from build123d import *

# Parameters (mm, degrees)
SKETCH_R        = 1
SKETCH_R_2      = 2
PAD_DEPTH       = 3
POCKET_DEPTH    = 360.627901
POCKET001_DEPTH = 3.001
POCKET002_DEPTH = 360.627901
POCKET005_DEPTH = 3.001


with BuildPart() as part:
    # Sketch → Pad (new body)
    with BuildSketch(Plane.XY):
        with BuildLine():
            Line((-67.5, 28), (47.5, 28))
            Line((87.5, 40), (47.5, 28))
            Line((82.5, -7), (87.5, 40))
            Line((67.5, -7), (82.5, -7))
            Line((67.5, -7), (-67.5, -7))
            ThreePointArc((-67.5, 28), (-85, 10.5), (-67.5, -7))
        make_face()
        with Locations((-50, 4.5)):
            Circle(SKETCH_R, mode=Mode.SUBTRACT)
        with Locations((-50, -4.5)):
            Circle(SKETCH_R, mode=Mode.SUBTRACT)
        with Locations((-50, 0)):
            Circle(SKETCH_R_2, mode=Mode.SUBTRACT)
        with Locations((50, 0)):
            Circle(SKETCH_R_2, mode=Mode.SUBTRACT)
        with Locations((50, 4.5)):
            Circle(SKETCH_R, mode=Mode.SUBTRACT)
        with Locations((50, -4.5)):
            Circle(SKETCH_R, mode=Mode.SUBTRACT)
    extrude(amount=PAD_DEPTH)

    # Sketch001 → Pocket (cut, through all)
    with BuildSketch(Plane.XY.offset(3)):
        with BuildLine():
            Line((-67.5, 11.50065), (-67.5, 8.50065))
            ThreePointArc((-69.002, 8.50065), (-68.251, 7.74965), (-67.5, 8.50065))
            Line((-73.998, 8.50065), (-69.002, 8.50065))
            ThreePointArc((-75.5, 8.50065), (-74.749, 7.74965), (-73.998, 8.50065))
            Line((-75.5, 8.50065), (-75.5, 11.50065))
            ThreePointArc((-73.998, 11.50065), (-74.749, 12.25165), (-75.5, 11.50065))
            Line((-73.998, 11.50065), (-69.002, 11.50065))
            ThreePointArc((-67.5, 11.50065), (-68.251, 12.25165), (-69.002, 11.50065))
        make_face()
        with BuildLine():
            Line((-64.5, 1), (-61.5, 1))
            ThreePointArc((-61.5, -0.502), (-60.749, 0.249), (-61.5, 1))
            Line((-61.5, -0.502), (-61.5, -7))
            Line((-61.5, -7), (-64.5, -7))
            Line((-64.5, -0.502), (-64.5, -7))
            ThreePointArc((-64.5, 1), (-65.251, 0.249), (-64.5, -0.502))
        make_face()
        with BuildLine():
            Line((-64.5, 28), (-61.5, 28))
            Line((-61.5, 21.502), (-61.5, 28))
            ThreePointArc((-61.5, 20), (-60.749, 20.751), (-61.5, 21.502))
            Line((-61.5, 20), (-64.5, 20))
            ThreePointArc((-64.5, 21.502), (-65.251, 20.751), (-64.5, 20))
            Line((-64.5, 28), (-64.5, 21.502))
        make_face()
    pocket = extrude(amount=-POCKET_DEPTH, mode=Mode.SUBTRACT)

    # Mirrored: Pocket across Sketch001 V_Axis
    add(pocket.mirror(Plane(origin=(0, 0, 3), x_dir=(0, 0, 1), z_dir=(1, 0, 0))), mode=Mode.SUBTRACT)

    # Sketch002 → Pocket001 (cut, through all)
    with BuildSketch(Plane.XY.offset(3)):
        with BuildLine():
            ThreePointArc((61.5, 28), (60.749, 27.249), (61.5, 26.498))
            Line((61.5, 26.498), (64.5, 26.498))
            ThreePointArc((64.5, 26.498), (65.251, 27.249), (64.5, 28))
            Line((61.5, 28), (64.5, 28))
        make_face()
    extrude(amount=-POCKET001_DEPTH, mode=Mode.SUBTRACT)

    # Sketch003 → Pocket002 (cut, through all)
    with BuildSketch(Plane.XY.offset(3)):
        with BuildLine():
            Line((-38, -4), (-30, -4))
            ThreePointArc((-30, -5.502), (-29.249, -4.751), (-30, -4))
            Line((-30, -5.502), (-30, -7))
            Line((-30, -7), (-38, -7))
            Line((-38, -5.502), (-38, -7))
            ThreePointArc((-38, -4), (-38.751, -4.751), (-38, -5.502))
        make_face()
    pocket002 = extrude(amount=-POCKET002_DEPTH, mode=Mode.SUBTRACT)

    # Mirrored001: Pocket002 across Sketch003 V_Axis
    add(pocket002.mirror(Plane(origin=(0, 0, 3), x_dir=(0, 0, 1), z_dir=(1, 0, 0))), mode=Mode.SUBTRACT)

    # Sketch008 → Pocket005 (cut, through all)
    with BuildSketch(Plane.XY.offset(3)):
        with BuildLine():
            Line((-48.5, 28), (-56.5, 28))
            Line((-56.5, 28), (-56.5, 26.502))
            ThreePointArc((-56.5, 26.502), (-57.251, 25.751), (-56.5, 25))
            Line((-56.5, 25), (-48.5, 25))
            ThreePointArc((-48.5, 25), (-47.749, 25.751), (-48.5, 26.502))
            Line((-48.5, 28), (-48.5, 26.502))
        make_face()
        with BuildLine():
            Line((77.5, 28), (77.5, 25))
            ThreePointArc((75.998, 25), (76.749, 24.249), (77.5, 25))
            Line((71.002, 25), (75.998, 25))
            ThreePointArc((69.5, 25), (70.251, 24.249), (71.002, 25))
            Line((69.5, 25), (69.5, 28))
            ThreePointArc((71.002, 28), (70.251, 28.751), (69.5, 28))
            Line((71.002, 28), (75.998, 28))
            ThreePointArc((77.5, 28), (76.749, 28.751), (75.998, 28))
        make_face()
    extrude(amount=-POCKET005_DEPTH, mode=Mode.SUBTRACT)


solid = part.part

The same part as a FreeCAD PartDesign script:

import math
import FreeCAD as App
import Part
import Sketcher
from FreeCAD import Vector

doc = App.newDocument("Part")
body = doc.addObject("PartDesign::Body", "Body")

sketch1 = doc.addObject("Sketcher::SketchObject", "Sketch")
body.addObject(sketch1)
sketch1.AttachmentSupport = (doc.XY_Plane, [""])
sketch1.MapMode = "FlatFace"
sketch1.addGeometry(Part.LineSegment(Vector(47.5, 28, 0), Vector(-67.5, 28, 0)), False)
sketch1.addGeometry(Part.ArcOfCircle(Part.Circle(Vector(-67.5, 10.5, 0), Vector(0, 0, 1), 17.5), math.radians(90), math.radians(270)), False)
sketch1.addGeometry(Part.LineSegment(Vector(-67.5, -7, 0), Vector(82.5, -7, 0)), False)
sketch1.addGeometry(Part.LineSegment(Vector(82.5, -7, 0), Vector(87.5, 40, 0)), False)
sketch1.addGeometry(Part.LineSegment(Vector(87.5, 40, 0), Vector(47.5, 28, 0)), False)
sketch1.addGeometry(Part.Circle(Vector(50, -4.5, 0), Vector(0, 0, 1), 1), False)
sketch1.addGeometry(Part.Circle(Vector(-50, -4.5, 0), Vector(0, 0, 1), 1), False)
sketch1.addGeometry(Part.Circle(Vector(50, 0, 0), Vector(0, 0, 1), 2), False)
sketch1.addGeometry(Part.Circle(Vector(50, 4.5, 0), Vector(0, 0, 1), 1), False)
sketch1.addGeometry(Part.Circle(Vector(-50, 0, 0), Vector(0, 0, 1), 2), False)
sketch1.addGeometry(Part.Circle(Vector(-50, 4.5, 0), Vector(0, 0, 1), 1), False)
sketch1.addConstraint(Sketcher.Constraint("Tangent", 0, 2, 1, 1))
sketch1.addConstraint(Sketcher.Constraint("Tangent", 1, 2, 2, 1))
sketch1.addConstraint(Sketcher.Constraint("Coincident", 2, 2, 3, 1))
sketch1.addConstraint(Sketcher.Constraint("Coincident", 3, 2, 4, 1))
sketch1.addConstraint(Sketcher.Constraint("Coincident", 4, 2, 0, 1))
sketch1.addConstraint(Sketcher.Constraint("Horizontal", 0))
sketch1.addConstraint(Sketcher.Constraint("Horizontal", 2))
sketch1.addConstraint(Sketcher.Constraint("Equal", 5, 6))
sketch1.addConstraint(Sketcher.Constraint("Equal", 6, 8))
sketch1.addConstraint(Sketcher.Constraint("Equal", 7, 9))
sketch1.addConstraint(Sketcher.Constraint("Equal", 8, 10))
sketch1.addConstraint(Sketcher.Constraint("Symmetric", 6, 3, 8, 3, -1, 1))
sketch1.addConstraint(Sketcher.Constraint("Symmetric", 7, 3, 9, 3, -1, 1))
sketch1.addConstraint(Sketcher.Constraint("Symmetric", 5, 3, 10, 3, -1, 1))
sketch1.addConstraint(Sketcher.Constraint("Symmetric", 5, 3, 6, 3, -2))
sketch1.addConstraint(Sketcher.Constraint("PointOnObject", 7, 3, -1))
sketch1.addConstraint(Sketcher.Constraint("Vertical", 5, 3, 7, 3))
sketch1.addConstraint(Sketcher.Constraint("Diameter", 5, 2.0))
sketch1.addConstraint(Sketcher.Constraint("Diameter", 7, 4.0))
sketch1.addConstraint(Sketcher.Constraint("Radius", 1, 17.5))
sketch1.addConstraint(Sketcher.Constraint("DistanceX", 0, 2, 0, 1, 115.0))
sketch1.addConstraint(Sketcher.Constraint("DistanceX", 2, 1, 2, 2, 150.0))
sketch1.addConstraint(Sketcher.Constraint("DistanceX", -1, 1, 5, 3, 50.0))
sketch1.addConstraint(Sketcher.Constraint("DistanceY", -1, 1, 0, 2, 28.0))
sketch1.addConstraint(Sketcher.Constraint("DistanceY", -1, 1, 3, 2, 40.0))
sketch1.addConstraint(Sketcher.Constraint("DistanceY", 5, 3, 1, 3, 15.0))
sketch1.addConstraint(Sketcher.Constraint("DistanceX", 2, 2, 3, 2, 5.0))
sketch1.addConstraint(Sketcher.Constraint("DistanceX", 1, 3, -1, 1, 67.5))
pad1 = doc.addObject("PartDesign::Pad", "Pad")
body.addObject(pad1)
pad1.Profile = sketch1
pad1.Length = 3

sketch2 = doc.addObject("Sketcher::SketchObject", "Sketch001")
body.addObject(sketch2)
sketch2.AttachmentSupport = (doc.XY_Plane, [""])
sketch2.MapMode = "FlatFace"
sketch2.AttachmentOffset = App.Placement(Vector(0, 0, 3), App.Rotation())
sketch2.addGeometry(Part.LineSegment(Vector(-67.5, 8.5, 0), Vector(-67.5, 11.5, 0)), False)
sketch2.addGeometry(Part.ArcOfCircle(Part.Circle(Vector(-68.3, 11.5, 0), Vector(0, 0, 1), 0.8), math.radians(0), math.radians(180)), False)
sketch2.addGeometry(Part.LineSegment(Vector(-69, 11.5, 0), Vector(-74, 11.5, 0)), False)
sketch2.addGeometry(Part.ArcOfCircle(Part.Circle(Vector(-74.7, 11.5, 0), Vector(0, 0, 1), 0.8), math.radians(0), math.radians(180)), False)
sketch2.addGeometry(Part.LineSegment(Vector(-75.5, 11.5, 0), Vector(-75.5, 8.5, 0)), False)
sketch2.addGeometry(Part.ArcOfCircle(Part.Circle(Vector(-74.7, 8.5, 0), Vector(0, 0, 1), 0.8), math.radians(180), math.radians(360)), False)
sketch2.addGeometry(Part.LineSegment(Vector(-74, 8.5, 0), Vector(-69, 8.5, 0)), False)
sketch2.addGeometry(Part.ArcOfCircle(Part.Circle(Vector(-68.3, 8.5, 0), Vector(0, 0, 1), 0.8), math.radians(180), math.radians(360)), False)
sketch2.addGeometry(Part.LineSegment(Vector(-61.5, 1, 0), Vector(-64.5, 1, 0)), False)
sketch2.addGeometry(Part.ArcOfCircle(Part.Circle(Vector(-64.5, 0.2, 0), Vector(0, 0, 1), 0.8), math.radians(90), math.radians(270)), False)
sketch2.addGeometry(Part.LineSegment(Vector(-64.5, -0.5, 0), Vector(-64.5, -7, 0)), False)
sketch2.addGeometry(Part.LineSegment(Vector(-64.5, -7, 0), Vector(-61.5, -7, 0)), False)
sketch2.addGeometry(Part.LineSegment(Vector(-61.5, -7, 0), Vector(-61.5, -0.5, 0)), False)
sketch2.addGeometry(Part.ArcOfCircle(Part.Circle(Vector(-61.5, 0.2, 0), Vector(0, 0, 1), 0.8), math.radians(-90), math.radians(90)), False)
sketch2.addGeometry(Part.LineSegment(Vector(-61.5, 28, 0), Vector(-64.5, 28, 0)), False)
sketch2.addGeometry(Part.LineSegment(Vector(-64.5, 28, 0), Vector(-64.5, 21.5, 0)), False)
sketch2.addGeometry(Part.ArcOfCircle(Part.Circle(Vector(-64.5, 20.8, 0), Vector(0, 0, 1), 0.8), math.radians(90), math.radians(270)), False)
sketch2.addGeometry(Part.LineSegment(Vector(-64.5, 20, 0), Vector(-61.5, 20, 0)), False)
sketch2.addGeometry(Part.ArcOfCircle(Part.Circle(Vector(-61.5, 20.8, 0), Vector(0, 0, 1), 0.8), math.radians(-90), math.radians(90)), False)
sketch2.addGeometry(Part.LineSegment(Vector(-61.5, 21.5, 0), Vector(-61.5, 28, 0)), False)
sketch2.addConstraint(Sketcher.Constraint("Tangent", 0, 2, 1, 1))
sketch2.addConstraint(Sketcher.Constraint("Coincident", 1, 2, 2, 1))
sketch2.addConstraint(Sketcher.Constraint("Coincident", 2, 2, 3, 1))
sketch2.addConstraint(Sketcher.Constraint("Tangent", 3, 2, 4, 1))
sketch2.addConstraint(Sketcher.Constraint("Tangent", 4, 2, 5, 1))
sketch2.addConstraint(Sketcher.Constraint("Coincident", 5, 2, 6, 1))
sketch2.addConstraint(Sketcher.Constraint("Coincident", 6, 2, 7, 1))
sketch2.addConstraint(Sketcher.Constraint("Tangent", 7, 2, 0, 1))
sketch2.addConstraint(Sketcher.Constraint("Tangent", 8, 2, 9, 1))
sketch2.addConstraint(Sketcher.Constraint("Coincident", 9, 2, 10, 1))
sketch2.addConstraint(Sketcher.Constraint("Coincident", 10, 2, 11, 1))
sketch2.addConstraint(Sketcher.Constraint("Coincident", 11, 2, 12, 1))
sketch2.addConstraint(Sketcher.Constraint("Coincident", 12, 2, 13, 1))
sketch2.addConstraint(Sketcher.Constraint("Tangent", 13, 2, 8, 1))
sketch2.addConstraint(Sketcher.Constraint("Coincident", 14, 2, 15, 1))
sketch2.addConstraint(Sketcher.Constraint("Coincident", 15, 2, 16, 1))
sketch2.addConstraint(Sketcher.Constraint("Tangent", 16, 2, 17, 1))
sketch2.addConstraint(Sketcher.Constraint("Tangent", 17, 2, 18, 1))
sketch2.addConstraint(Sketcher.Constraint("Coincident", 18, 2, 19, 1))
sketch2.addConstraint(Sketcher.Constraint("Coincident", 19, 2, 14, 1))
sketch2.addConstraint(Sketcher.Constraint("Vertical", 0))
sketch2.addConstraint(Sketcher.Constraint("Horizontal", 2))
sketch2.addConstraint(Sketcher.Constraint("Vertical", 4))
sketch2.addConstraint(Sketcher.Constraint("Horizontal", 6))
sketch2.addConstraint(Sketcher.Constraint("Horizontal", 8))
sketch2.addConstraint(Sketcher.Constraint("Vertical", 10))
sketch2.addConstraint(Sketcher.Constraint("Horizontal", 11))
sketch2.addConstraint(Sketcher.Constraint("Vertical", 12))
sketch2.addConstraint(Sketcher.Constraint("Horizontal", 14))
sketch2.addConstraint(Sketcher.Constraint("Vertical", 15))
sketch2.addConstraint(Sketcher.Constraint("Horizontal", 17))
sketch2.addConstraint(Sketcher.Constraint("Vertical", 19))
sketch2.addConstraint(Sketcher.Constraint("Equal", 1, 3))
sketch2.addConstraint(Sketcher.Constraint("Equal", 3, 5))
sketch2.addConstraint(Sketcher.Constraint("Equal", 5, 7))
sketch2.addConstraint(Sketcher.Constraint("Equal", 7, 9))
sketch2.addConstraint(Sketcher.Constraint("Equal", 9, 13))
sketch2.addConstraint(Sketcher.Constraint("Equal", 13, 16))
sketch2.addConstraint(Sketcher.Constraint("Equal", 16, 18))
sketch2.addConstraint(Sketcher.Constraint("Horizontal", 1, 3, 3, 3))
sketch2.addConstraint(Sketcher.Constraint("Horizontal", 5, 3, 7, 3))
sketch2.addConstraint(Sketcher.Constraint("Horizontal", 0, 2, 1, 2))
sketch2.addConstraint(Sketcher.Constraint("Horizontal", 4, 2, 5, 2))
sketch2.addConstraint(Sketcher.Constraint("Vertical", 9, 3, 16, 3))
sketch2.addConstraint(Sketcher.Constraint("Vertical", 13, 3, 18, 3))
sketch2.addConstraint(Sketcher.Constraint("Vertical", 8, 2, 9, 2))
sketch2.addConstraint(Sketcher.Constraint("Vertical", 18, 3, 11, 2))
sketch2.addConstraint(Sketcher.Constraint("Vertical", 10, 2, 14, 2))
sketch2.addConstraint(Sketcher.Constraint("Vertical", 17, 2, 18, 2))
sketch2.addConstraint(Sketcher.Constraint("Equal", 17, 0))
sketch2.addConstraint(Sketcher.Constraint("Equal", 12, 15))
sketch2.addConstraint(Sketcher.Constraint("DistanceX", 8, 2, 8, 1, 3.0))
sketch2.addConstraint(Sketcher.Constraint("DistanceY", -1, 1, 8, 2, 1.0))
sketch2.addConstraint(Sketcher.Constraint("DistanceY", 10, 2, -1, 1, 7.0))
sketch2.addConstraint(Sketcher.Constraint("DistanceY", -1, 1, 14, 2, 28.0))
sketch2.addConstraint(Sketcher.Constraint("Radius", 1, 0.751))
sketch2.addConstraint(Sketcher.Constraint("DistanceX", 0, 2, 16, 3, 3.0))
sketch2.addConstraint(Sketcher.Constraint("DistanceX", 9, 3, -1, 1, 64.5))
sketch2.addConstraint(Sketcher.Constraint("DistanceX", 3, 2, -1, 1, 75.5))
sketch2.addConstraint(Sketcher.Constraint("DistanceY", -1, 1, 1, 3, 11.50065))
pocket1 = doc.addObject("PartDesign::Pocket", "Pocket")
body.addObject(pocket1)
pocket1.Profile = sketch2
pocket1.Type = "ThroughAll"
doc.recompute()

mirrored = doc.addObject("PartDesign::Mirrored", "Mirrored")
body.addObject(mirrored)
mirrored.Originals = [pocket1]
mirrored.MirrorPlane = (doc.YZ_Plane, [""])
body.Tip = mirrored

sketch3 = doc.addObject("Sketcher::SketchObject", "Sketch002")
body.addObject(sketch3)
sketch3.AttachmentSupport = (doc.XY_Plane, [""])
sketch3.MapMode = "FlatFace"
sketch3.AttachmentOffset = App.Placement(Vector(0, 0, 3), App.Rotation())
sketch3.addGeometry(Part.ArcOfCircle(Part.Circle(Vector(61.5, 27.2, 0), Vector(0, 0, 1), 0.8), math.radians(90), math.radians(270)), False)
sketch3.addGeometry(Part.LineSegment(Vector(61.5, 26.5, 0), Vector(64.5, 26.5, 0)), False)
sketch3.addGeometry(Part.ArcOfCircle(Part.Circle(Vector(64.5, 27.2, 0), Vector(0, 0, 1), 0.8), math.radians(-90), math.radians(90)), False)
sketch3.addGeometry(Part.LineSegment(Vector(64.5, 28, 0), Vector(61.5, 28, 0)), False)
sketch3.addConstraint(Sketcher.Constraint("Tangent", 0, 2, 1, 1))
sketch3.addConstraint(Sketcher.Constraint("Tangent", 1, 2, 2, 1))
sketch3.addConstraint(Sketcher.Constraint("Tangent", 2, 2, 3, 1))
sketch3.addConstraint(Sketcher.Constraint("Tangent", 3, 2, 0, 1))
sketch3.addConstraint(Sketcher.Constraint("Horizontal", 1))
sketch3.addConstraint(Sketcher.Constraint("Horizontal", 3))
sketch3.addConstraint(Sketcher.Constraint("DistanceX", 1, 1, 1, 2, 3.0))
sketch3.addConstraint(Sketcher.Constraint("DistanceY", -1, 1, 2, 2, 28.0))
sketch3.addConstraint(Sketcher.Constraint("Radius", 0, 0.751))
sketch3.addConstraint(Sketcher.Constraint("DistanceX", -1, 1, 0, 3, 61.5))
pocket2 = doc.addObject("PartDesign::Pocket", "Pocket001")
body.addObject(pocket2)
pocket2.Profile = sketch3
pocket2.Type = "ThroughAll"

sketch4 = doc.addObject("Sketcher::SketchObject", "Sketch003")
body.addObject(sketch4)
sketch4.AttachmentSupport = (doc.XY_Plane, [""])
sketch4.MapMode = "FlatFace"
sketch4.AttachmentOffset = App.Placement(Vector(0, 0, 3), App.Rotation())
sketch4.addGeometry(Part.LineSegment(Vector(-30, -4, 0), Vector(-38, -4, 0)), False)
sketch4.addGeometry(Part.ArcOfCircle(Part.Circle(Vector(-38, -4.8, 0), Vector(0, 0, 1), 0.8), math.radians(90), math.radians(270)), False)
sketch4.addGeometry(Part.LineSegment(Vector(-38, -5.5, 0), Vector(-38, -7, 0)), False)
sketch4.addGeometry(Part.LineSegment(Vector(-38, -7, 0), Vector(-30, -7, 0)), False)
sketch4.addGeometry(Part.LineSegment(Vector(-30, -7, 0), Vector(-30, -5.5, 0)), False)
sketch4.addGeometry(Part.ArcOfCircle(Part.Circle(Vector(-30, -4.8, 0), Vector(0, 0, 1), 0.8), math.radians(-90), math.radians(90)), False)
sketch4.addConstraint(Sketcher.Constraint("Tangent", 0, 2, 1, 1))
sketch4.addConstraint(Sketcher.Constraint("Coincident", 1, 2, 2, 1))
sketch4.addConstraint(Sketcher.Constraint("Coincident", 2, 2, 3, 1))
sketch4.addConstraint(Sketcher.Constraint("Coincident", 3, 2, 4, 1))
sketch4.addConstraint(Sketcher.Constraint("Coincident", 4, 2, 5, 1))
sketch4.addConstraint(Sketcher.Constraint("Tangent", 5, 2, 0, 1))
sketch4.addConstraint(Sketcher.Constraint("Horizontal", 0))
sketch4.addConstraint(Sketcher.Constraint("Vertical", 2))
sketch4.addConstraint(Sketcher.Constraint("Horizontal", 3))
sketch4.addConstraint(Sketcher.Constraint("Vertical", 4))
sketch4.addConstraint(Sketcher.Constraint("Equal", 1, 5))
sketch4.addConstraint(Sketcher.Constraint("Vertical", 0, 2, 1, 2))
sketch4.addConstraint(Sketcher.Constraint("Vertical", 5, 3, 3, 2))
sketch4.addConstraint(Sketcher.Constraint("DistanceX", 0, 2, 0, 1, 8.0))
sketch4.addConstraint(Sketcher.Constraint("DistanceX", 1, 3, -1, 1, 38.0))
sketch4.addConstraint(Sketcher.Constraint("DistanceY", 0, 2, -1, 1, 4.0))
sketch4.addConstraint(Sketcher.Constraint("DistanceY", 2, 2, -1, 1, 7.0))
sketch4.addConstraint(Sketcher.Constraint("Radius", 1, 0.751))
pocket3 = doc.addObject("PartDesign::Pocket", "Pocket002")
body.addObject(pocket3)
pocket3.Profile = sketch4
pocket3.Type = "ThroughAll"
doc.recompute()

mirrored2 = doc.addObject("PartDesign::Mirrored", "Mirrored001")
body.addObject(mirrored2)
mirrored2.Originals = [pocket3]
mirrored2.MirrorPlane = (doc.YZ_Plane, [""])
body.Tip = mirrored2

sketch5 = doc.addObject("Sketcher::SketchObject", "Sketch004")
body.addObject(sketch5)
sketch5.AttachmentSupport = (doc.XY_Plane, [""])
sketch5.MapMode = "FlatFace"
sketch5.AttachmentOffset = App.Placement(Vector(0, 0, 3), App.Rotation())
sketch5.addGeometry(Part.LineSegment(Vector(-48.5, 28, 0), Vector(-56.5, 28, 0)), False)
sketch5.addGeometry(Part.LineSegment(Vector(-56.5, 28, 0), Vector(-56.5, 26.5, 0)), False)
sketch5.addGeometry(Part.ArcOfCircle(Part.Circle(Vector(-56.5, 25.8, 0), Vector(0, 0, 1), 0.8), math.radians(90), math.radians(270)), False)
sketch5.addGeometry(Part.LineSegment(Vector(-56.5, 25, 0), Vector(-48.5, 25, 0)), False)
sketch5.addGeometry(Part.ArcOfCircle(Part.Circle(Vector(-48.5, 25.8, 0), Vector(0, 0, 1), 0.8), math.radians(-90), math.radians(90)), False)
sketch5.addGeometry(Part.LineSegment(Vector(-48.5, 26.5, 0), Vector(-48.5, 28, 0)), False)
sketch5.addGeometry(Part.LineSegment(Vector(77.5, 25, 0), Vector(77.5, 28, 0)), False)
sketch5.addGeometry(Part.ArcOfCircle(Part.Circle(Vector(76.7, 28, 0), Vector(0, 0, 1), 0.8), math.radians(0), math.radians(180)), False)
sketch5.addGeometry(Part.LineSegment(Vector(76, 28, 0), Vector(71, 28, 0)), False)
sketch5.addGeometry(Part.ArcOfCircle(Part.Circle(Vector(70.3, 28, 0), Vector(0, 0, 1), 0.8), math.radians(0), math.radians(180)), False)
sketch5.addGeometry(Part.LineSegment(Vector(69.5, 28, 0), Vector(69.5, 25, 0)), False)
sketch5.addGeometry(Part.ArcOfCircle(Part.Circle(Vector(70.3, 25, 0), Vector(0, 0, 1), 0.8), math.radians(180), math.radians(360)), False)
sketch5.addGeometry(Part.LineSegment(Vector(71, 25, 0), Vector(76, 25, 0)), False)
sketch5.addGeometry(Part.ArcOfCircle(Part.Circle(Vector(76.7, 25, 0), Vector(0, 0, 1), 0.8), math.radians(180), math.radians(360)), False)
sketch5.addConstraint(Sketcher.Constraint("Coincident", 0, 2, 1, 1))
sketch5.addConstraint(Sketcher.Constraint("Coincident", 1, 2, 2, 1))
sketch5.addConstraint(Sketcher.Constraint("Tangent", 2, 2, 3, 1))
sketch5.addConstraint(Sketcher.Constraint("Tangent", 3, 2, 4, 1))
sketch5.addConstraint(Sketcher.Constraint("Coincident", 4, 2, 5, 1))
sketch5.addConstraint(Sketcher.Constraint("Coincident", 5, 2, 0, 1))
sketch5.addConstraint(Sketcher.Constraint("Tangent", 6, 2, 7, 1))
sketch5.addConstraint(Sketcher.Constraint("Coincident", 7, 2, 8, 1))
sketch5.addConstraint(Sketcher.Constraint("Coincident", 8, 2, 9, 1))
sketch5.addConstraint(Sketcher.Constraint("Tangent", 9, 2, 10, 1))
sketch5.addConstraint(Sketcher.Constraint("Tangent", 10, 2, 11, 1))
sketch5.addConstraint(Sketcher.Constraint("Coincident", 11, 2, 12, 1))
sketch5.addConstraint(Sketcher.Constraint("Coincident", 12, 2, 13, 1))
sketch5.addConstraint(Sketcher.Constraint("Tangent", 13, 2, 6, 1))
sketch5.addConstraint(Sketcher.Constraint("Horizontal", 0))
sketch5.addConstraint(Sketcher.Constraint("Vertical", 1))
sketch5.addConstraint(Sketcher.Constraint("Horizontal", 3))
sketch5.addConstraint(Sketcher.Constraint("Vertical", 5))
sketch5.addConstraint(Sketcher.Constraint("Vertical", 6))
sketch5.addConstraint(Sketcher.Constraint("Horizontal", 8))
sketch5.addConstraint(Sketcher.Constraint("Vertical", 10))
sketch5.addConstraint(Sketcher.Constraint("Horizontal", 12))
sketch5.addConstraint(Sketcher.Constraint("Equal", 2, 4))
sketch5.addConstraint(Sketcher.Constraint("Equal", 4, 7))
sketch5.addConstraint(Sketcher.Constraint("Equal", 7, 9))
sketch5.addConstraint(Sketcher.Constraint("Equal", 9, 11))
sketch5.addConstraint(Sketcher.Constraint("Equal", 11, 13))
sketch5.addConstraint(Sketcher.Constraint("Horizontal", 7, 3, 9, 3))
sketch5.addConstraint(Sketcher.Constraint("Horizontal", 11, 3, 13, 3))
sketch5.addConstraint(Sketcher.Constraint("Horizontal", 9, 3, 0, 2))
sketch5.addConstraint(Sketcher.Constraint("Horizontal", 13, 3, 2, 2))
sketch5.addConstraint(Sketcher.Constraint("Horizontal", 6, 2, 7, 2))
sketch5.addConstraint(Sketcher.Constraint("Horizontal", 10, 2, 11, 2))
sketch5.addConstraint(Sketcher.Constraint("Vertical", 2, 3, 0, 2))
sketch5.addConstraint(Sketcher.Constraint("Vertical", 3, 2, 4, 2))
sketch5.addConstraint(Sketcher.Constraint("DistanceX", 0, 2, 0, 1, 8.0))
sketch5.addConstraint(Sketcher.Constraint("DistanceY", 6, 1, 6, 2, 3.0))
sketch5.addConstraint(Sketcher.Constraint("DistanceY", -1, 1, 7, 3, 28.0))
sketch5.addConstraint(Sketcher.Constraint("Radius", 2, 0.751))
sketch5.addConstraint(Sketcher.Constraint("DistanceX", 5, 2, 6, 2, 126.0))
sketch5.addConstraint(Sketcher.Constraint("DistanceX", 2, 3, -1, 1, 56.5))
sketch5.addConstraint(Sketcher.Constraint("DistanceX", -1, 1, 9, 2, 69.5))
pocket4 = doc.addObject("PartDesign::Pocket", "Pocket003")
body.addObject(pocket4)
pocket4.Profile = sketch5
pocket4.Type = "ThroughAll"

doc.recompute()
